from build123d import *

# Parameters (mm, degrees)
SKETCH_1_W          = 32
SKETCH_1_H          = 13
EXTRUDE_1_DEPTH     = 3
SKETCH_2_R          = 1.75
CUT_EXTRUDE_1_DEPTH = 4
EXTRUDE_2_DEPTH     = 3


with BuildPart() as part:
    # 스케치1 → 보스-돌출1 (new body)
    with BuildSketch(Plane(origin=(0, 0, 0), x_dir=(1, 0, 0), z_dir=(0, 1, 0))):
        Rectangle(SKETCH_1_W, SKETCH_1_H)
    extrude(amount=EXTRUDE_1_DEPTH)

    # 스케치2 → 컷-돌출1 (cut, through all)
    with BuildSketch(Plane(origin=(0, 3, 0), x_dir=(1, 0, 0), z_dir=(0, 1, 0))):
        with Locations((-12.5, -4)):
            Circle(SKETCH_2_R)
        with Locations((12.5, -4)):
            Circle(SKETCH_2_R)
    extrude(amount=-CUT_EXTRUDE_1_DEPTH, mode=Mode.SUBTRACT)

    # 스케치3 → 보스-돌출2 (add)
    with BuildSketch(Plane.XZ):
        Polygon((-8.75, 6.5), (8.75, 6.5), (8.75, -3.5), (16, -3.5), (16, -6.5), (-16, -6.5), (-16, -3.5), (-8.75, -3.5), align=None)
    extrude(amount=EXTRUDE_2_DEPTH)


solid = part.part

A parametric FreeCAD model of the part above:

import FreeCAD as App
import Part
import Sketcher
from FreeCAD import Vector
Q = App.Units.Quantity


def add_polygon(sketch, points):
    """Adds a closed chain of lines whose ends are joined by coincident constraints."""
    first, n = sketch.GeometryCount, len(points)
    for a, b in zip(points, points[1:] + points[:1]):
        sketch.addGeometry(Part.LineSegment(App.Vector(*a, 0), App.Vector(*b, 0)), False)
    for i in range(n):
        sketch.addConstraint(Sketcher.Constraint("Coincident", first + i, 2, first + (i + 1) % n, 1))

doc = App.newDocument("Part")
params = doc.addObject("Spreadsheet::Sheet", "Params")
for row, (alias, value) in enumerate([
    ("sketch1_width", "32 mm"),
    ("sketch1_height", "13 mm"),
    ("pad1_length", "3 mm"),
    ("sketch2_diameter", "3.5 mm"),
    ("sketch3_width", "32 mm"),
    ("sketch3_height", "10 mm"),
    ("sketch3_height2", "3 mm"),
    ("sketch3_width2", "17.5 mm"),
    ("pad2_length", "3 mm"),
], start=1):
    params.set(f"A{row}", alias)
    params.set(f"B{row}", "=" + value)
    params.setAlias(f"B{row}", alias)

body = doc.addObject("PartDesign::Body", "Body")

sketch1 = body.newObject("Sketcher::SketchObject", "Sketch")
sketch1.AttachmentSupport = (doc.getObject("XZ_Plane"), [""])
sketch1.MapMode = "FlatFace"
add_polygon(sketch1, [(-16, -6), (-16, 6), (16, 6), (16, -6)])
sketch1.addConstraint(Sketcher.Constraint("Vertical", 0))
sketch1.addConstraint(Sketcher.Constraint("Horizontal", 1))
sketch1.addConstraint(Sketcher.Constraint("Vertical", 2))
sketch1.addConstraint(Sketcher.Constraint("Horizontal", 3))
sketch1.addConstraint(Sketcher.Constraint("Symmetric", 0, 2, 2, 2, -1, 1))
sketch1.addConstraint(Sketcher.Constraint("DistanceX", 1, 1, 1, 2, Q("32 mm")))
sketch1.addConstraint(Sketcher.Constraint("DistanceY", 0, 1, 0, 2, Q("13 mm")))
sketch1.setExpression("Constraints[9]", "Params.sketch1_width")
sketch1.setExpression("Constraints[10]", "Params.sketch1_height")
pad1 = body.newObject("PartDesign::Pad", "Pad")
pad1.Profile = sketch1
pad1.setExpression("Length", "Params.pad1_length")
pad1.Reversed = True

sketch2 = body.newObject("Sketcher::SketchObject", "Sketch001")
sketch2.AttachmentSupport = (doc.getObject("XZ_Plane"), [""])
sketch2.MapMode = "FlatFace"
sketch2.AttachmentOffset = App.Placement(Vector(0, 0, -3), App.Rotation())
sketch2.addGeometry(Part.Circle(Vector(-12.5, 4, 0), Vector(0, 0, 1), 1.8), False)
sketch2.addGeometry(Part.Circle(Vector(12.5, 4, 0), Vector(0, 0, 1), 1.8), False)
sketch2.addConstraint(Sketcher.Constraint("Equal", 0, 1))
sketch2.addConstraint(Sketcher.Constraint("Symmetric", 0, 3, 1, 3, -2))
sketch2.addConstraint(Sketcher.Constraint("Diameter", 0, Q("3.5 mm")))
sketch2.addConstraint(Sketcher.Constraint("DistanceY", -1, 1, 0, 3, Q("4 mm")))
sketch2.addConstraint(Sketcher.Constraint("DistanceX", 0, 3, 1, 3, Q("25 mm")))
sketch2.setExpression("Constraints[2]", "Params.sketch2_diameter")
pocket1 = body.newObject("PartDesign::Pocket", "Pocket")
pocket1.Profile = sketch2
pocket1.Type = "ThroughAll"
pocket1.Reversed = True

sketch3 = body.newObject("Sketcher::SketchObject", "Sketch002")
sketch3.AttachmentSupport = (doc.getObject("XZ_Plane"), [""])
sketch3.MapMode = "FlatFace"
add_polygon(sketch3, [(8.8, 6.5), (-8.8, 6.5), (-8.8, -3.5), (-16, -3.5), (-16, -6.5), (16, -6.5), (16, -3.5), (8.8, -3.5)])
sketch3.addConstraint(Sketcher.Constraint("Horizontal", 0))
sketch3.addConstraint(Sketcher.Constraint("Vertical", 1))
sketch3.addConstraint(Sketcher.Constraint("Horizontal", 2))
sketch3.addConstraint(Sketcher.Constraint("Vertical", 3))
sketch3.addConstraint(Sketcher.Constraint("Horizontal", 4))
sketch3.addConstraint(Sketcher.Constraint("Vertical", 5))
sketch3.addConstraint(Sketcher.Constraint("Horizontal", 6))
sketch3.addConstraint(Sketcher.Constraint("Vertical", 7))
sketch3.addConstraint(Sketcher.Constraint("Symmetric", 2, 2, 5, 2, -2))
sketch3.addConstraint(Sketcher.Constraint("Equal", 2, 6))
sketch3.addConstraint(Sketcher.Constraint("DistanceX", 4, 1, 4, 2, Q("32 mm")))
sketch3.addConstraint(Sketcher.Constraint("DistanceY", 1, 2, 1, 1, Q("10 mm")))
sketch3.addConstraint(Sketcher.Constraint("DistanceY", 3, 2, 3, 1, Q("3 mm")))
sketch3.addConstraint(Sketcher.Constraint("DistanceX", 0, 2, 0, 1, Q("17.5 mm")))
sketch3.addConstraint(Sketcher.Constraint("DistanceY", -1, 1, 0, 2, Q("6.5 mm")))
sketch3.setExpression("Constraints[18]", "Params.sketch3_width")
sketch3.setExpression("Constraints[19]", "Params.sketch3_height")
sketch3.setExpression("Constraints[20]", "Params.sketch3_height2")
sketch3.setExpression("Constraints[21]", "Params.sketch3_width2")
pad2 = body.newObject("PartDesign::Pad", "Pad001")
pad2.Profile = sketch3
pad2.setExpression("Length", "Params.pad2_length")

doc.recompute()
